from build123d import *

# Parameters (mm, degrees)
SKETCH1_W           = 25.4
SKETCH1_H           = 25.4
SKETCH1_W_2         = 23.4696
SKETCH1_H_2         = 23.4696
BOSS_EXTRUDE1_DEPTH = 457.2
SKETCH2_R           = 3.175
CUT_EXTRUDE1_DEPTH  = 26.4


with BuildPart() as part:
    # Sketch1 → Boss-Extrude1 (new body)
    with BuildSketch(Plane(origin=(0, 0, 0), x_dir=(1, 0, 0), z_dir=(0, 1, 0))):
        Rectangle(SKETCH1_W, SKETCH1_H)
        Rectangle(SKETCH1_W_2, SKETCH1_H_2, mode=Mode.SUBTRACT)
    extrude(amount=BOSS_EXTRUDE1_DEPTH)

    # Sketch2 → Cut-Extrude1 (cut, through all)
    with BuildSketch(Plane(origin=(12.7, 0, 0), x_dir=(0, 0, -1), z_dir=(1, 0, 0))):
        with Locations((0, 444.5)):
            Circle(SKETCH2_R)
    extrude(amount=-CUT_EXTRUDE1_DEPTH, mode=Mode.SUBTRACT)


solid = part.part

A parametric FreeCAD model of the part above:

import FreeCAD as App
import Part
import Sketcher
Q = App.Units.Quantity

doc = App.newDocument("Part")
body = doc.addObject("PartDesign::Body", "Body")

# Sketch on XZ plane
sketch1 = body.newObject("Sketcher::SketchObject", "Sketch")
sketch1.AttachmentSupport = (doc.getObject("XZ_Plane"), [""])
sketch1.MapMode = "FlatFace"
sketch1.addGeometry([
    Part.LineSegment(App.Vector(-13, -13, 0), App.Vector(-13, 13, 0)),  # 0
    Part.LineSegment(App.Vector(-13, 13, 0), App.Vector(13, 13, 0)),  # 1
    Part.LineSegment(App.Vector(13, 13, 0), App.Vector(13, -13, 0)),  # 2
    Part.LineSegment(App.Vector(13, -13, 0), App.Vector(-13, -13, 0)),  # 3
    Part.LineSegment(App.Vector(12, 12, 0), App.Vector(-12, 12, 0)),  # 4
    Part.LineSegment(App.Vector(-12, 12, 0), App.Vector(-12, -12, 0)),  # 5
    Part.LineSegment(App.Vector(-12, -12, 0), App.Vector(12, -12, 0)),  # 6
    Part.LineSegment(App.Vector(12, -12, 0), App.Vector(12, 12, 0)),  # 7
], False)
sketch1.addConstraint([
    Sketcher.Constraint("Coincident", 0, 2, 1, 1),
    Sketcher.Constraint("Coincident", 1, 2, 2, 1),
    Sketcher.Constraint("Coincident", 2, 2, 3, 1),
    Sketcher.Constraint("Coincident", 3, 2, 0, 1),
    Sketcher.Constraint("Coincident", 4, 2, 5, 1),
    Sketcher.Constraint("Coincident", 5, 2, 6, 1),
    Sketcher.Constraint("Coincident", 6, 2, 7, 1),
    Sketcher.Constraint("Coincident", 7, 2, 4, 1),
    Sketcher.Constraint("Vertical", 0),
    Sketcher.Constraint("Horizontal", 1),
    Sketcher.Constraint("Vertical", 2),
    Sketcher.Constraint("Horizontal", 3),
    Sketcher.Constraint("Horizontal", 4),
    Sketcher.Constraint("Vertical", 5),
    Sketcher.Constraint("Horizontal", 6),
    Sketcher.Constraint("Vertical", 7),
    Sketcher.Constraint("Symmetric", 0, 2, 2, 2, -1, 1),
    Sketcher.Constraint("Symmetric", 4, 2, 6, 2, -1, 1),
    Sketcher.Constraint("Equal", 3, 0),
    Sketcher.Constraint("Equal", 6, 5),
    Sketcher.Constraint("DistanceX", 1, 1, 1, 2, Q("1 in")),
    Sketcher.Constraint("DistanceX", 4, 2, 4, 1, Q("0.924 in")),
])
pad1 = body.newObject("PartDesign::Pad", "Pad")
pad1.Profile = sketch1
pad1.Length = Q("18 in")
pad1.Reversed = True

# Sketch on YZ plane
sketch2 = body.newObject("Sketcher::SketchObject", "Sketch001")
sketch2.AttachmentSupport = (doc.getObject("YZ_Plane"), [""])
sketch2.MapMode = "FlatFace"
sketch2.AttachmentOffset = App.Placement(App.Vector(0, 0, 0.5 * 25.4), App.Rotation())
sketch2.addGeometry(Part.Circle(App.Vector(444.5, 0, 0), App.Vector(0, 0, 1), 3.2), False)
sketch2.addConstraint([
    Sketcher.Constraint("PointOnObject", 0, 3, -1),
    Sketcher.Constraint("Diameter", 0, Q("0.25 in")),
    Sketcher.Constraint("DistanceX", -1, 1, 0, 3, Q("17.5 in")),
])
pocket1 = body.newObject("PartDesign::Pocket", "Pocket")
pocket1.Profile = sketch2
pocket1.Type = "ThroughAll"

doc.recompute()
